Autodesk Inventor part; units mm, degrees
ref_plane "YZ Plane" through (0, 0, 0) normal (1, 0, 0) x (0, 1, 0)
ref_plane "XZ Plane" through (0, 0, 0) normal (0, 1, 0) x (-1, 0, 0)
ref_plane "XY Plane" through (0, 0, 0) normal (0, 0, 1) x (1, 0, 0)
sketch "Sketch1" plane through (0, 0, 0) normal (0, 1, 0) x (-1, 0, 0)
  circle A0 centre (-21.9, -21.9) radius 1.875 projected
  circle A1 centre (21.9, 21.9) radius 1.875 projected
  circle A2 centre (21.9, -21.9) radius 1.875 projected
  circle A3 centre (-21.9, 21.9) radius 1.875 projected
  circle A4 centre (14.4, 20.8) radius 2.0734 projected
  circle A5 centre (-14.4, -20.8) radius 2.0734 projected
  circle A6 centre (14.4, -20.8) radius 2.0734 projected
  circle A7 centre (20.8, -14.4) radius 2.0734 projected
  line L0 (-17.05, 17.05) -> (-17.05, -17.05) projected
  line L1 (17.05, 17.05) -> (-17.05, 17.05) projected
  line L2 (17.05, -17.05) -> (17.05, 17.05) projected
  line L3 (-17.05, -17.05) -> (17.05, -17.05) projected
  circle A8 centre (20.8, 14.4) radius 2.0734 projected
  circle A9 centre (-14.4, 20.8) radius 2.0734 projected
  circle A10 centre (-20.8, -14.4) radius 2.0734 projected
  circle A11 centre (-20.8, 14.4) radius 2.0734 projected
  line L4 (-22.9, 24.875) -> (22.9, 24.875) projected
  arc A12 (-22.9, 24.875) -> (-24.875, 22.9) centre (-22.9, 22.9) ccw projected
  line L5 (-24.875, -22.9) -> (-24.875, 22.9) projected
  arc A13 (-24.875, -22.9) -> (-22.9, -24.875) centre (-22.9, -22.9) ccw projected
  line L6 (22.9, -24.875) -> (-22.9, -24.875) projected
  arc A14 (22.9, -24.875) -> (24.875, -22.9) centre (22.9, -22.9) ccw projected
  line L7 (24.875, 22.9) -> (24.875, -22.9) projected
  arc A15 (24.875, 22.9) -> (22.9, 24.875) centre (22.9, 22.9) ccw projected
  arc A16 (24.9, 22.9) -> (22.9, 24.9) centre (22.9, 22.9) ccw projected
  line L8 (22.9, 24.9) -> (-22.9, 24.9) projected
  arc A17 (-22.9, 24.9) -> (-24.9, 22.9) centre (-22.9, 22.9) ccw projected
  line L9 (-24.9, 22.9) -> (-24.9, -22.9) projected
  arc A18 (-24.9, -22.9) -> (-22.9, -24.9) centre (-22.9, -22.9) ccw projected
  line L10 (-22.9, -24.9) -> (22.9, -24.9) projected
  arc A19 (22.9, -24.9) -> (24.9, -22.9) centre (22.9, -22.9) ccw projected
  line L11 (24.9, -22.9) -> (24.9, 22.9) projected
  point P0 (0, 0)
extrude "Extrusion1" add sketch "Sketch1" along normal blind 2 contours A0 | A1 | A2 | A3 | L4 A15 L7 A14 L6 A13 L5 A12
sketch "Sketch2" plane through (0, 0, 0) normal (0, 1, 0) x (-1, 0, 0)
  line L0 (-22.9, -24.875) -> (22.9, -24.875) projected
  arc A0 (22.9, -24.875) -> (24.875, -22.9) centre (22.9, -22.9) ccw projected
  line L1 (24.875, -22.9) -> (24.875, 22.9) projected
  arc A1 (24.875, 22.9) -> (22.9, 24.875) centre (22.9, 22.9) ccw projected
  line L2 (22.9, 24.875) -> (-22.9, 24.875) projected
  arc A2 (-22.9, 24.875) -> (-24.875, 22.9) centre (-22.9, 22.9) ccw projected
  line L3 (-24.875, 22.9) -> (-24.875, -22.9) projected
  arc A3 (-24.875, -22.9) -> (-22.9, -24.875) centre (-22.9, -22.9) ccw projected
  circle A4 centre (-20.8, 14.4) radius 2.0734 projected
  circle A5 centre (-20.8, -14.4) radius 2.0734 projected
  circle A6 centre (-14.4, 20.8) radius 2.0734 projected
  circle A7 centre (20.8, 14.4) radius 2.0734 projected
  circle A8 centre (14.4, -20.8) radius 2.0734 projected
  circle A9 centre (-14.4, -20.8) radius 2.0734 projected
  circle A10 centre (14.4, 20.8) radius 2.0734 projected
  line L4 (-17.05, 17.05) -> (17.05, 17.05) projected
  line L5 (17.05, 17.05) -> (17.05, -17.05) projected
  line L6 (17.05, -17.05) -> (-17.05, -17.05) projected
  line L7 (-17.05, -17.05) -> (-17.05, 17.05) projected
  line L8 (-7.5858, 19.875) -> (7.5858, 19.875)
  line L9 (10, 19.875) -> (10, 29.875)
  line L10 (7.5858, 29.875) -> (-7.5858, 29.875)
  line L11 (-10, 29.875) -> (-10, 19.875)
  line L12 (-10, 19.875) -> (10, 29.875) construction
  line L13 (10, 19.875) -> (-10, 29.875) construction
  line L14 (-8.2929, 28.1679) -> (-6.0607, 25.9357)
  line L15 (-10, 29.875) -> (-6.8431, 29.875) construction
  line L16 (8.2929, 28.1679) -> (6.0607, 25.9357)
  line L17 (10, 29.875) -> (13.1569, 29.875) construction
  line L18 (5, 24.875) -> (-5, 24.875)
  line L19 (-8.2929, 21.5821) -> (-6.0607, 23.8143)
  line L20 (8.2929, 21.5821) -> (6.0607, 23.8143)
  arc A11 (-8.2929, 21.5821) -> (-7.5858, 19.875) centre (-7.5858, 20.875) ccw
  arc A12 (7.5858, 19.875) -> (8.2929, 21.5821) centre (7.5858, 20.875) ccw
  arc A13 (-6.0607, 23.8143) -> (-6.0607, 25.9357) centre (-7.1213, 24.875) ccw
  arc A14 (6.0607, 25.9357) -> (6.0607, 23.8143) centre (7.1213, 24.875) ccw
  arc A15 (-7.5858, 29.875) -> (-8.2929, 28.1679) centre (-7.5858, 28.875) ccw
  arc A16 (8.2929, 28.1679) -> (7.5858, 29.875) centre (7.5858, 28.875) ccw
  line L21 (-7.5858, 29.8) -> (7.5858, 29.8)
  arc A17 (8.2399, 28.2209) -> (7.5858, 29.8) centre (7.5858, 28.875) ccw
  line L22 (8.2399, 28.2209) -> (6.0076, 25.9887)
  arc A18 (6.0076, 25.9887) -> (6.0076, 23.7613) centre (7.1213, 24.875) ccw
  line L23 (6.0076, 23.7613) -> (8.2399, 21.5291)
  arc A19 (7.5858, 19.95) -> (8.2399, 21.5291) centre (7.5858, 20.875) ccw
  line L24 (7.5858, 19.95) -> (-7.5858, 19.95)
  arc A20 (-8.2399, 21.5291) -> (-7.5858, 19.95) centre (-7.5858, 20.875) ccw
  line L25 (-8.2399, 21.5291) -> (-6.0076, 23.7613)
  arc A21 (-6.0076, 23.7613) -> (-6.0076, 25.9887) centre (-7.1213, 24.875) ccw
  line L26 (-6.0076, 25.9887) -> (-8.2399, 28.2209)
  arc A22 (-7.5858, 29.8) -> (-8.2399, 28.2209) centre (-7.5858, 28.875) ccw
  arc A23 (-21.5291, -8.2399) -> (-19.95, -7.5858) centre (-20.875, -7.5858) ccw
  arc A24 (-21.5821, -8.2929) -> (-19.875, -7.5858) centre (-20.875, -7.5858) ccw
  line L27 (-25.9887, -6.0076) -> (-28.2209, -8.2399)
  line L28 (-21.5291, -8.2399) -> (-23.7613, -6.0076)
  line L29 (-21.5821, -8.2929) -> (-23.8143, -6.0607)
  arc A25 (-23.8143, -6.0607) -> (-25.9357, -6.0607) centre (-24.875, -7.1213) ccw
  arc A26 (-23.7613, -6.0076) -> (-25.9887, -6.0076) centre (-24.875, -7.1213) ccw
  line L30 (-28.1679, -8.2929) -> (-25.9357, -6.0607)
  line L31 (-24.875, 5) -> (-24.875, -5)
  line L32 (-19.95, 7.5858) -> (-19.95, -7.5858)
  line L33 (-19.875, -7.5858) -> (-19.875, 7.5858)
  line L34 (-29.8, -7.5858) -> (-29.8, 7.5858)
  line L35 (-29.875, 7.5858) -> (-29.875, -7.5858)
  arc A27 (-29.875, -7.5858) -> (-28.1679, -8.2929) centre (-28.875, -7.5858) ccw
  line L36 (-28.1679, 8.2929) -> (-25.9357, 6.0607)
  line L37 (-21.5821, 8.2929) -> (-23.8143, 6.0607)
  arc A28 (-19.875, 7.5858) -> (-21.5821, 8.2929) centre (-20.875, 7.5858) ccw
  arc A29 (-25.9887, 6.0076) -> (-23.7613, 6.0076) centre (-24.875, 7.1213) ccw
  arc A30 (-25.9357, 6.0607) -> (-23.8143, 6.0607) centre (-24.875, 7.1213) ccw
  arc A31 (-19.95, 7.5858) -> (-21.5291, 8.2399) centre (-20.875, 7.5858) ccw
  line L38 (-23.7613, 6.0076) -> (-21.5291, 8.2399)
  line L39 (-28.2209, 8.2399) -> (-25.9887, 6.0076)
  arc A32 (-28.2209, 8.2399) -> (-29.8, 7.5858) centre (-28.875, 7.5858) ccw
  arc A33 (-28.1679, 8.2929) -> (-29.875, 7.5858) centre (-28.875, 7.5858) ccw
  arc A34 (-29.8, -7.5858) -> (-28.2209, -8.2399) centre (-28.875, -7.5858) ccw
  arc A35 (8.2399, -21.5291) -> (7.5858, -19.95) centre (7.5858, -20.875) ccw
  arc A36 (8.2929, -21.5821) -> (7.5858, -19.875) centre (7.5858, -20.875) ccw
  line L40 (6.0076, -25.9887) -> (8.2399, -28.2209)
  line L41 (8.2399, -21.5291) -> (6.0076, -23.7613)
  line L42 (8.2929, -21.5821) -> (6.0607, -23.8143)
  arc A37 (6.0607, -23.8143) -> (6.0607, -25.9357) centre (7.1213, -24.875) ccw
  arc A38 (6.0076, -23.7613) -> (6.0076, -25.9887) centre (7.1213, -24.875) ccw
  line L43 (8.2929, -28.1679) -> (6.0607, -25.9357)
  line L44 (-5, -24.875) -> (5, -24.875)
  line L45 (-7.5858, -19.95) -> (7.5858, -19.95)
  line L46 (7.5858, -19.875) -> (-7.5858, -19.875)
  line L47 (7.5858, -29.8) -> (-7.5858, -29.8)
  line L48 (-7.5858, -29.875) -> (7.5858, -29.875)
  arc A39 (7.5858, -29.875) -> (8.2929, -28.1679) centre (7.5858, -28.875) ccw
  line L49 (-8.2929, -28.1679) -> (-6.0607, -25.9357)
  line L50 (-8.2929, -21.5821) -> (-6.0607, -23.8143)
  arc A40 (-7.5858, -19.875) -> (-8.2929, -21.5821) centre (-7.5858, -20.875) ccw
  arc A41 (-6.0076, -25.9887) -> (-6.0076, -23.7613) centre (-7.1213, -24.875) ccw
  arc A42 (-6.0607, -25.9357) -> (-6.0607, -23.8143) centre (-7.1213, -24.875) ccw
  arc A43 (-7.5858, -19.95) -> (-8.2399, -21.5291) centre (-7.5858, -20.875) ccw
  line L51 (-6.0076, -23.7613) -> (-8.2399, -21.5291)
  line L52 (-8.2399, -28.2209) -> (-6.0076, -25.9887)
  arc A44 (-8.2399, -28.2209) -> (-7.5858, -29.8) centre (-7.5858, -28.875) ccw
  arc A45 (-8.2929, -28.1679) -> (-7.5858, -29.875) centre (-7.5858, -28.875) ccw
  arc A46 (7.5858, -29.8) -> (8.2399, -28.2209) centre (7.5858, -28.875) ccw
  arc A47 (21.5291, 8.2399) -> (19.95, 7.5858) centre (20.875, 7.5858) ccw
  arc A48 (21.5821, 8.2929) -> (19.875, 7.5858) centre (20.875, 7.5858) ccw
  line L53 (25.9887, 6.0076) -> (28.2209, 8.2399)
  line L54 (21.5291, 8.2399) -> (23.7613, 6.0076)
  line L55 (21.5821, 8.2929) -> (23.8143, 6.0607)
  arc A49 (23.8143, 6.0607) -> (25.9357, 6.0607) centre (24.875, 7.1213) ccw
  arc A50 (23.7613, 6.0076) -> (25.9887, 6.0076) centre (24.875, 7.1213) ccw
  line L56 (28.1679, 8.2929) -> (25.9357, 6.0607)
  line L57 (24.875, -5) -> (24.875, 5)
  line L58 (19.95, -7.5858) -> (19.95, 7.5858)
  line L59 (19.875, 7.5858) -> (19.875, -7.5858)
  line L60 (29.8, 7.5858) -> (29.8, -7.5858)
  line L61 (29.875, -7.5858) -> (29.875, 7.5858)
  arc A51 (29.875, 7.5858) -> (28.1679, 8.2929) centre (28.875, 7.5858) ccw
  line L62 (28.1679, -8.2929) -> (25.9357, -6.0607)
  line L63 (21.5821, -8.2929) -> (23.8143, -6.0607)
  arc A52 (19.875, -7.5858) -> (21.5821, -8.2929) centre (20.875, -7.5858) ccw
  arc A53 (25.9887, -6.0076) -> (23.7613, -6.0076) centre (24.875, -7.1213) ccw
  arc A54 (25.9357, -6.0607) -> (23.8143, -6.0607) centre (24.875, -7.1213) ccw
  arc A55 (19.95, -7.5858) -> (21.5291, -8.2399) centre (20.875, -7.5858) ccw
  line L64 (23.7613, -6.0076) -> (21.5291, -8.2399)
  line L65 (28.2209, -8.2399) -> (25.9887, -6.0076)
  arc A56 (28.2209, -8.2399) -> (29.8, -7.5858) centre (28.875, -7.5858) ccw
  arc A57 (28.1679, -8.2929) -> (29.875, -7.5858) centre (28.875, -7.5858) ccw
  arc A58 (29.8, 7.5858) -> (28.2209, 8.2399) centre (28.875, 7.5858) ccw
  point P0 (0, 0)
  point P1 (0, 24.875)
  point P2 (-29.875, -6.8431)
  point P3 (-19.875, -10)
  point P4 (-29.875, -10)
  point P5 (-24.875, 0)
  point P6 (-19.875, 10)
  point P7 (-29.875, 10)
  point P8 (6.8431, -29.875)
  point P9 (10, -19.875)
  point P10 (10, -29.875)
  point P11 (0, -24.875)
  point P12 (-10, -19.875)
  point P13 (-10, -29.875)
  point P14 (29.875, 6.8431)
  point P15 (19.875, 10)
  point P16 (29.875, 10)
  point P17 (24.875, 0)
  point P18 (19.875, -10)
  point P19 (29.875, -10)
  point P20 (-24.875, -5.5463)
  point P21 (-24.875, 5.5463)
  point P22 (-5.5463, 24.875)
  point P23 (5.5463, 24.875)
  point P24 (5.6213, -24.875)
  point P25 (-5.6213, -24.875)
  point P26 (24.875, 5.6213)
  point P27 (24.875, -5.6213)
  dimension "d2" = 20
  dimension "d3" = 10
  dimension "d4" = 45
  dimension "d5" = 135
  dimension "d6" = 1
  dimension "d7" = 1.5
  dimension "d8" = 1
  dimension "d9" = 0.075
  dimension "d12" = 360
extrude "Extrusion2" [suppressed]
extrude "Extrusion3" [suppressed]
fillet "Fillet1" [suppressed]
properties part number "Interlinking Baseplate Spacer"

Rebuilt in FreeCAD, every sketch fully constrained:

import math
import FreeCAD as App
import Part
import Sketcher

doc = App.newDocument("Part")
body = doc.addObject("PartDesign::Body", "Body")

sketch1 = body.newObject("Sketcher::SketchObject", "Sketch")
sketch1.AttachmentSupport = (doc.getObject("XZ_Plane"), [""])
sketch1.MapMode = "FlatFace"
sketch1.addGeometry(Part.LineSegment(App.Vector(-22.9, 24.9, 0), App.Vector(22.9, 24.9, 0)), False)
sketch1.addGeometry(Part.ArcOfCircle(Part.Circle(App.Vector(22.9, 22.9, 0), App.Vector(0, 0, 1), 2), math.radians(0), math.radians(90)), False)
sketch1.addGeometry(Part.LineSegment(App.Vector(24.9, 22.9, 0), App.Vector(24.9, -22.9, 0)), False)
sketch1.addGeometry(Part.ArcOfCircle(Part.Circle(App.Vector(22.9, -22.9, 0), App.Vector(0, 0, 1), 2), math.radians(-90), math.radians(0)), False)
sketch1.addGeometry(Part.LineSegment(App.Vector(22.9, -24.9, 0), App.Vector(-22.9, -24.9, 0)), False)
sketch1.addGeometry(Part.ArcOfCircle(Part.Circle(App.Vector(-22.9, -22.9, 0), App.Vector(0, 0, 1), 2), math.radians(180), math.radians(270)), False)
sketch1.addGeometry(Part.LineSegment(App.Vector(-24.9, -22.9, 0), App.Vector(-24.9, 22.9, 0)), False)
sketch1.addGeometry(Part.ArcOfCircle(Part.Circle(App.Vector(-22.9, 22.9, 0), App.Vector(0, 0, 1), 2), math.radians(90), math.radians(180)), False)
sketch1.addGeometry(Part.Circle(App.Vector(14.4, -20.8, 0), App.Vector(0, 0, 1), 2.1), False)
sketch1.addGeometry(Part.Circle(App.Vector(20.8, -14.4, 0), App.Vector(0, 0, 1), 2.1), False)
sketch1.addGeometry(Part.LineSegment(App.Vector(17.1, -17.1, 0), App.Vector(17.1, 17.1, 0)), False)
sketch1.addGeometry(Part.LineSegment(App.Vector(17.1, 17.1, 0), App.Vector(-17.1, 17.1, 0)), False)
sketch1.addGeometry(Part.LineSegment(App.Vector(-17.1, 17.1, 0), App.Vector(-17.1, -17.1, 0)), False)
sketch1.addGeometry(Part.LineSegment(App.Vector(-17.1, -17.1, 0), App.Vector(17.1, -17.1, 0)), False)
sketch1.addGeometry(Part.Circle(App.Vector(-14.4, -20.8, 0), App.Vector(0, 0, 1), 2.1), False)
sketch1.addGeometry(Part.Circle(App.Vector(-20.8, -14.4, 0), App.Vector(0, 0, 1), 2.1), False)
sketch1.addGeometry(Part.Circle(App.Vector(20.8, 14.4, 0), App.Vector(0, 0, 1), 2.1), False)
sketch1.addGeometry(Part.Circle(App.Vector(14.4, 20.8, 0), App.Vector(0, 0, 1), 2.1), False)
sketch1.addGeometry(Part.Circle(App.Vector(-20.8, 14.4, 0), App.Vector(0, 0, 1), 2.1), False)
sketch1.addGeometry(Part.Circle(App.Vector(-14.4, 20.8, 0), App.Vector(0, 0, 1), 2.1), False)
sketch1.addConstraint(Sketcher.Constraint("Tangent", 0, 2, 1, 2))
sketch1.addConstraint(Sketcher.Constraint("Tangent", 1, 1, 2, 1))
sketch1.addConstraint(Sketcher.Constraint("Tangent", 2, 2, 3, 2))
sketch1.addConstraint(Sketcher.Constraint("Tangent", 3, 1, 4, 1))
sketch1.addConstraint(Sketcher.Constraint("Tangent", 4, 2, 5, 2))
sketch1.addConstraint(Sketcher.Constraint("Tangent", 5, 1, 6, 1))
sketch1.addConstraint(Sketcher.Constraint("Tangent", 6, 2, 7, 2))
sketch1.addConstraint(Sketcher.Constraint("Tangent", 7, 1, 0, 1))
sketch1.addConstraint(Sketcher.Constraint("Coincident", 10, 2, 11, 1))
sketch1.addConstraint(Sketcher.Constraint("Coincident", 11, 2, 12, 1))
sketch1.addConstraint(Sketcher.Constraint("Coincident", 12, 2, 13, 1))
sketch1.addConstraint(Sketcher.Constraint("Coincident", 13, 2, 10, 1))
sketch1.addConstraint(Sketcher.Constraint("Horizontal", 0))
sketch1.addConstraint(Sketcher.Constraint("Vertical", 2))
sketch1.addConstraint(Sketcher.Constraint("Horizontal", 4))
sketch1.addConstraint(Sketcher.Constraint("Vertical", 6))
sketch1.addConstraint(Sketcher.Constraint("Vertical", 10))
sketch1.addConstraint(Sketcher.Constraint("Horizontal", 11))
sketch1.addConstraint(Sketcher.Constraint("Vertical", 12))
sketch1.addConstraint(Sketcher.Constraint("Horizontal", 13))
sketch1.addConstraint(Sketcher.Constraint("Equal", 1, 3))
sketch1.addConstraint(Sketcher.Constraint("Equal", 3, 5))
sketch1.addConstraint(Sketcher.Constraint("Equal", 5, 7))
sketch1.addConstraint(Sketcher.Constraint("Equal", 8, 9))
sketch1.addConstraint(Sketcher.Constraint("Equal", 9, 14))
sketch1.addConstraint(Sketcher.Constraint("Equal", 14, 15))
sketch1.addConstraint(Sketcher.Constraint("Equal", 15, 16))
sketch1.addConstraint(Sketcher.Constraint("Equal", 16, 17))
sketch1.addConstraint(Sketcher.Constraint("Equal", 17, 18))
sketch1.addConstraint(Sketcher.Constraint("Equal", 18, 19))
sketch1.addConstraint(Sketcher.Constraint("Symmetric", 1, 3, 5, 3, -1, 1))
sketch1.addConstraint(Sketcher.Constraint("Symmetric", 15, 3, 16, 3, -1, 1))
sketch1.addConstraint(Sketcher.Constraint("Symmetric", 14, 3, 17, 3, -1, 1))
sketch1.addConstraint(Sketcher.Constraint("Symmetric", 9, 3, 18, 3, -1, 1))
sketch1.addConstraint(Sketcher.Constraint("Symmetric", 8, 3, 19, 3, -1, 1))
sketch1.addConstraint(Sketcher.Constraint("Symmetric", 10, 2, 12, 2, -1, 1))
sketch1.addConstraint(Sketcher.Constraint("Symmetric", 8, 3, 14, 3, -2))
sketch1.addConstraint(Sketcher.Constraint("Symmetric", 9, 3, 15, 3, -2))
sketch1.addConstraint(Sketcher.Constraint("Equal", 4, 2))
sketch1.addConstraint(Sketcher.Constraint("Equal", 13, 10))
sketch1.addConstraint(Sketcher.Constraint("DistanceX", 0, 1, 0, 2, 45.8))
sketch1.addConstraint(Sketcher.Constraint("DistanceX", 11, 2, 11, 1, 34.1))
sketch1.addConstraint(Sketcher.Constraint("Radius", 1, 1.975))
sketch1.addConstraint(Sketcher.Constraint("Diameter", 8, 4.1468))
sketch1.addConstraint(Sketcher.Constraint("DistanceX", -1, 1, 8, 3, 14.4))
sketch1.addConstraint(Sketcher.Constraint("DistanceY", 8, 3, -1, 1, 20.8))
sketch1.addConstraint(Sketcher.Constraint("DistanceX", -1, 1, 9, 3, 20.8))
sketch1.addConstraint(Sketcher.Constraint("DistanceY", 9, 3, -1, 1, 14.4))
pad1 = body.newObject("PartDesign::Pad", "Pad")
pad1.Profile = sketch1
pad1.Length = 2
pad1.Reversed = True

doc.recompute()
